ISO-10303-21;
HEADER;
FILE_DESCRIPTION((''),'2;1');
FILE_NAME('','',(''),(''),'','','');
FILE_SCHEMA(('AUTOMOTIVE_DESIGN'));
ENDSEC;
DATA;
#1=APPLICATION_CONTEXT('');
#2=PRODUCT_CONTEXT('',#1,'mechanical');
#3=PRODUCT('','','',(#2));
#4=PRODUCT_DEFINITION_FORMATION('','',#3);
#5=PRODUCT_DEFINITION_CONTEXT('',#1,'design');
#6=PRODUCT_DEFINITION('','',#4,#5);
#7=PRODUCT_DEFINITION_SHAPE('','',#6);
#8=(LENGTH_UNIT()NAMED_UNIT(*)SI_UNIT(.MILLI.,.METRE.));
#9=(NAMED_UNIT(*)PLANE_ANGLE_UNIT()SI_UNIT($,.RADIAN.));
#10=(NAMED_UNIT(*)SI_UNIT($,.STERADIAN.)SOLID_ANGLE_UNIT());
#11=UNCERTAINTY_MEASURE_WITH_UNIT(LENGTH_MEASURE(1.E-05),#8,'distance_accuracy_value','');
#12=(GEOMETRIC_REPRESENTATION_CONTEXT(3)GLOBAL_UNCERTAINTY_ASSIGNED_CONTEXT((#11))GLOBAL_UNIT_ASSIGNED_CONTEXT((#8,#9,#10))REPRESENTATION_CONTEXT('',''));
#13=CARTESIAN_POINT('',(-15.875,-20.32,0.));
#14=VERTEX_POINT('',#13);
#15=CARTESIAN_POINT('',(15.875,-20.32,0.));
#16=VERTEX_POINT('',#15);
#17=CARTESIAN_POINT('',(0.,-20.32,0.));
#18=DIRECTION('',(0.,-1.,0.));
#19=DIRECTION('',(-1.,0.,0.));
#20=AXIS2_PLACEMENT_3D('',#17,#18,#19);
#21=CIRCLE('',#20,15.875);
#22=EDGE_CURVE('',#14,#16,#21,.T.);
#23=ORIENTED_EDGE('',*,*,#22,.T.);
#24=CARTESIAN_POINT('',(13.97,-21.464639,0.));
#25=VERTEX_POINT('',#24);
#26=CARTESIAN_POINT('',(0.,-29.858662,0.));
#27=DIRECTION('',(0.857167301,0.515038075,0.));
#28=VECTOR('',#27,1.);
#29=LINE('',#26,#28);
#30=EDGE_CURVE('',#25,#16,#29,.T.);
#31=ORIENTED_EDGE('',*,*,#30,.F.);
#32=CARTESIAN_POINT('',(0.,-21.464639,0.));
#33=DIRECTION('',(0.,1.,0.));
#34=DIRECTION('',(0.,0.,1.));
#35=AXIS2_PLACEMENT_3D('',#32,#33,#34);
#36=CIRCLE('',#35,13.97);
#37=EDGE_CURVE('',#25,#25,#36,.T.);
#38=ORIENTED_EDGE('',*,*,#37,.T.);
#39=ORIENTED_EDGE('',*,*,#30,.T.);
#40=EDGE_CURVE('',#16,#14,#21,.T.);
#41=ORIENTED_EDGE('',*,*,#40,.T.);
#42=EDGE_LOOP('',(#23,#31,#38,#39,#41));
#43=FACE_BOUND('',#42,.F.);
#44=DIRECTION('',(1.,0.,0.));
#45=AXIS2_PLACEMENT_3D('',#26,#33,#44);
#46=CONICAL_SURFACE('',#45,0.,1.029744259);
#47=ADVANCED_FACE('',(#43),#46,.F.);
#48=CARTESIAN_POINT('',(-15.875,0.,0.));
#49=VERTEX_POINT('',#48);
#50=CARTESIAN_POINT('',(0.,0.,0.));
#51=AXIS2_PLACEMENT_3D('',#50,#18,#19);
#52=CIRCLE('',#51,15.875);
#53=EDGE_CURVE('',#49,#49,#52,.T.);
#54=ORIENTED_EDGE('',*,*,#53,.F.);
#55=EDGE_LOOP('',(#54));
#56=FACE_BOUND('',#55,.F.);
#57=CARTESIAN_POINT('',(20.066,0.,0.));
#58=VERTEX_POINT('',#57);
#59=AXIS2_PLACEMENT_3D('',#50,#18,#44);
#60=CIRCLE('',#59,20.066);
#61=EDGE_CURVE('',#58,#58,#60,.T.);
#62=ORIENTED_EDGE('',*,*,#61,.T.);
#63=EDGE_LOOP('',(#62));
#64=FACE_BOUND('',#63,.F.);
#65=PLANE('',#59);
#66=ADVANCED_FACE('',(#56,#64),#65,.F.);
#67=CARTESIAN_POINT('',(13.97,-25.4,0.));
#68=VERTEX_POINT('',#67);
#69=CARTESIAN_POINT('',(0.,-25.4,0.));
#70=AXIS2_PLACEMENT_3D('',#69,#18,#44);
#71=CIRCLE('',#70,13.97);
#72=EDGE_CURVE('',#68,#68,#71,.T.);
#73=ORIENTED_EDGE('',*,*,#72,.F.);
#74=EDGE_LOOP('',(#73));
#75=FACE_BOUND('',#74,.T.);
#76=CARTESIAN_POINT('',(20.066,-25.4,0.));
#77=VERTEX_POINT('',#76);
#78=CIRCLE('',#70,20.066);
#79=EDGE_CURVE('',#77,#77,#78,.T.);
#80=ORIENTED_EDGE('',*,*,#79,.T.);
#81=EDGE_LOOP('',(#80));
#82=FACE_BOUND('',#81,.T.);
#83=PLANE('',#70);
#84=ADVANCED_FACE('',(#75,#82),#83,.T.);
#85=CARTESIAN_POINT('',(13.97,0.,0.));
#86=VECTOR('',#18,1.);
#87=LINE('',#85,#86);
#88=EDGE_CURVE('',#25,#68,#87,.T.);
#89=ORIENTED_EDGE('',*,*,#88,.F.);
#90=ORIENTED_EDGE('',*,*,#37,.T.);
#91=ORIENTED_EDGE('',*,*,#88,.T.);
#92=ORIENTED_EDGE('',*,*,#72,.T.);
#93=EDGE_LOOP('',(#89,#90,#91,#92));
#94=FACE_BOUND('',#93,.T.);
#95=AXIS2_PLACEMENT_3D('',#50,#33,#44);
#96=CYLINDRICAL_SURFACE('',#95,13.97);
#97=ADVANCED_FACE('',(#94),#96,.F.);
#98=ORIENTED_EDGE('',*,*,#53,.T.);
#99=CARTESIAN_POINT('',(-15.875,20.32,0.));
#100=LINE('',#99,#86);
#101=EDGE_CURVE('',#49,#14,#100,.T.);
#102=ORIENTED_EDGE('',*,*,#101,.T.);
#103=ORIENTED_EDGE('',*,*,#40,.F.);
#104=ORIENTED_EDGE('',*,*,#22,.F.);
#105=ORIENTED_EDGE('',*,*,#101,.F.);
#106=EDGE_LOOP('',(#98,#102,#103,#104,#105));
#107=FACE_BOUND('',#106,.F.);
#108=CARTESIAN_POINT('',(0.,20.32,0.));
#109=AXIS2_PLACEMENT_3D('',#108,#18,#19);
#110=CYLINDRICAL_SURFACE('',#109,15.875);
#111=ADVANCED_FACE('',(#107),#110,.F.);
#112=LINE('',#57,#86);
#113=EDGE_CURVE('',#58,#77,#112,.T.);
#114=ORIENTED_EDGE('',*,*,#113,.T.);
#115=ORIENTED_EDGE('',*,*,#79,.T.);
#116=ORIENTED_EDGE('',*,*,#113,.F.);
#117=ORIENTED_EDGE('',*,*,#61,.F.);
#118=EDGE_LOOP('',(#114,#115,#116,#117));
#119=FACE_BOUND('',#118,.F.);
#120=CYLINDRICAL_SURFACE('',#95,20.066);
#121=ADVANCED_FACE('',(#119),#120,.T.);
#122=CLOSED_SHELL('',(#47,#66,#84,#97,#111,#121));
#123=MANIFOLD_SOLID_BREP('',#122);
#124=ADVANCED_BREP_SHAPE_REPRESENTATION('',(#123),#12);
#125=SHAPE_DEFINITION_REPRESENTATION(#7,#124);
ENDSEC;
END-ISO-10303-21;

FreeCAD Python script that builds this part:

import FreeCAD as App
import Part
import Sketcher
from FreeCAD import Vector
Q = App.Units.Quantity

doc = App.newDocument("Part")
body = doc.addObject("PartDesign::Body", "Body")

sketch1 = body.newObject("Sketcher::SketchObject", "Sketch")
sketch1.AttachmentSupport = (doc.getObject("XZ_Plane"), [""])
sketch1.MapMode = "FlatFace"
sketch1.addGeometry(Part.Circle(Vector(0, 0, 0), Vector(0, 0, 1), 20.066), False)
sketch1.addGeometry(Part.Circle(Vector(0, 0, 0), Vector(0, 0, 1), 13.97), False)
sketch1.addConstraint(Sketcher.Constraint("Coincident", 0, 3, -1, 1))
sketch1.addConstraint(Sketcher.Constraint("Coincident", 1, 3, -1, 1))
sketch1.addConstraint(Sketcher.Constraint("Diameter", 1, Q("1.1 in")))
sketch1.addConstraint(Sketcher.Constraint("Diameter", 0, Q("1.58 in")))
pad1 = body.newObject("PartDesign::Pad", "Pad")
pad1.Profile = sketch1
pad1.Length = Q("1 in")

sketch2 = body.newObject("Sketcher::SketchObject", "Sketch001")
sketch2.AttachmentSupport = (doc.getObject("XZ_Plane"), [""])
sketch2.MapMode = "FlatFace"
sketch2.addGeometry(Part.Circle(Vector(0, 0, 0), Vector(0, 0, 1), 15.875), False)
sketch2.addConstraint(Sketcher.Constraint("Coincident", 0, 3, -1, 1))
sketch2.addConstraint(Sketcher.Constraint("Diameter", 0, Q("1.25 in")))
doc.recompute()
hole = body.newObject("PartDesign::Hole", "Hole")
hole.Profile = sketch2
hole.ThreadType = "None"
hole.Diameter = Q("1.25 in")
hole.DepthType = "Dimension"
hole.Depth = Q("0.8 in")
hole.DrillPoint = "Angled"
hole.DrillPointAngle = 118
hole.Reversed = True

doc.recompute()
